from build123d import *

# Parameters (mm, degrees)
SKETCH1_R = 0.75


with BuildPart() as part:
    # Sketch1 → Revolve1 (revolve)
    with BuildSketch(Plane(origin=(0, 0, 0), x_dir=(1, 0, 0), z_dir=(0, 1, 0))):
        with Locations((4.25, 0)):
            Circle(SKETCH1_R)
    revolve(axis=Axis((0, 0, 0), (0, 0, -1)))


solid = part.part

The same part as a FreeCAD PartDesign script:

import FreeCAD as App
import Part
import Sketcher

V = App.Vector
Q = App.Units.Quantity

doc = App.newDocument("Part")
params = doc.addObject("Spreadsheet::Sheet", "Params")
for row, (alias, value) in enumerate([
    ("sketch1_diameter", "1.5 mm"),
    ("revolution_angle", "360 deg"),
], start=1):
    params.set(f"A{row}", alias)
    params.set(f"B{row}", "=" + value)
    params.setAlias(f"B{row}", alias)

body = doc.addObject("PartDesign::Body", "Body")

sketch1 = body.newObject("Sketcher::SketchObject", "Sketch")
sketch1.AttachmentSupport = (doc.getObject("XZ_Plane"), [""])
sketch1.MapMode = "FlatFace"
sketch1.addGeometry(Part.Circle(V(4.2, 0, 0), V(0, 0, 1), 0.8), False)
sketch1.addConstraint([
    Sketcher.Constraint("PointOnObject", 0, 3, -1),
    Sketcher.Constraint("Diameter", 0, Q("1.5 mm")),
    Sketcher.Constraint("DistanceX", -1, 1, 0, 3, Q("4.25 mm")),
])
sketch1.setExpression("Constraints[1]", "Params.sketch1_diameter")
revolution = body.newObject("PartDesign::Revolution", "Revolution")
revolution.Profile = sketch1
revolution.ReferenceAxis = (sketch1, ["V_Axis"])
revolution.setExpression("Angle", "Params.revolution_angle")

doc.recompute()
